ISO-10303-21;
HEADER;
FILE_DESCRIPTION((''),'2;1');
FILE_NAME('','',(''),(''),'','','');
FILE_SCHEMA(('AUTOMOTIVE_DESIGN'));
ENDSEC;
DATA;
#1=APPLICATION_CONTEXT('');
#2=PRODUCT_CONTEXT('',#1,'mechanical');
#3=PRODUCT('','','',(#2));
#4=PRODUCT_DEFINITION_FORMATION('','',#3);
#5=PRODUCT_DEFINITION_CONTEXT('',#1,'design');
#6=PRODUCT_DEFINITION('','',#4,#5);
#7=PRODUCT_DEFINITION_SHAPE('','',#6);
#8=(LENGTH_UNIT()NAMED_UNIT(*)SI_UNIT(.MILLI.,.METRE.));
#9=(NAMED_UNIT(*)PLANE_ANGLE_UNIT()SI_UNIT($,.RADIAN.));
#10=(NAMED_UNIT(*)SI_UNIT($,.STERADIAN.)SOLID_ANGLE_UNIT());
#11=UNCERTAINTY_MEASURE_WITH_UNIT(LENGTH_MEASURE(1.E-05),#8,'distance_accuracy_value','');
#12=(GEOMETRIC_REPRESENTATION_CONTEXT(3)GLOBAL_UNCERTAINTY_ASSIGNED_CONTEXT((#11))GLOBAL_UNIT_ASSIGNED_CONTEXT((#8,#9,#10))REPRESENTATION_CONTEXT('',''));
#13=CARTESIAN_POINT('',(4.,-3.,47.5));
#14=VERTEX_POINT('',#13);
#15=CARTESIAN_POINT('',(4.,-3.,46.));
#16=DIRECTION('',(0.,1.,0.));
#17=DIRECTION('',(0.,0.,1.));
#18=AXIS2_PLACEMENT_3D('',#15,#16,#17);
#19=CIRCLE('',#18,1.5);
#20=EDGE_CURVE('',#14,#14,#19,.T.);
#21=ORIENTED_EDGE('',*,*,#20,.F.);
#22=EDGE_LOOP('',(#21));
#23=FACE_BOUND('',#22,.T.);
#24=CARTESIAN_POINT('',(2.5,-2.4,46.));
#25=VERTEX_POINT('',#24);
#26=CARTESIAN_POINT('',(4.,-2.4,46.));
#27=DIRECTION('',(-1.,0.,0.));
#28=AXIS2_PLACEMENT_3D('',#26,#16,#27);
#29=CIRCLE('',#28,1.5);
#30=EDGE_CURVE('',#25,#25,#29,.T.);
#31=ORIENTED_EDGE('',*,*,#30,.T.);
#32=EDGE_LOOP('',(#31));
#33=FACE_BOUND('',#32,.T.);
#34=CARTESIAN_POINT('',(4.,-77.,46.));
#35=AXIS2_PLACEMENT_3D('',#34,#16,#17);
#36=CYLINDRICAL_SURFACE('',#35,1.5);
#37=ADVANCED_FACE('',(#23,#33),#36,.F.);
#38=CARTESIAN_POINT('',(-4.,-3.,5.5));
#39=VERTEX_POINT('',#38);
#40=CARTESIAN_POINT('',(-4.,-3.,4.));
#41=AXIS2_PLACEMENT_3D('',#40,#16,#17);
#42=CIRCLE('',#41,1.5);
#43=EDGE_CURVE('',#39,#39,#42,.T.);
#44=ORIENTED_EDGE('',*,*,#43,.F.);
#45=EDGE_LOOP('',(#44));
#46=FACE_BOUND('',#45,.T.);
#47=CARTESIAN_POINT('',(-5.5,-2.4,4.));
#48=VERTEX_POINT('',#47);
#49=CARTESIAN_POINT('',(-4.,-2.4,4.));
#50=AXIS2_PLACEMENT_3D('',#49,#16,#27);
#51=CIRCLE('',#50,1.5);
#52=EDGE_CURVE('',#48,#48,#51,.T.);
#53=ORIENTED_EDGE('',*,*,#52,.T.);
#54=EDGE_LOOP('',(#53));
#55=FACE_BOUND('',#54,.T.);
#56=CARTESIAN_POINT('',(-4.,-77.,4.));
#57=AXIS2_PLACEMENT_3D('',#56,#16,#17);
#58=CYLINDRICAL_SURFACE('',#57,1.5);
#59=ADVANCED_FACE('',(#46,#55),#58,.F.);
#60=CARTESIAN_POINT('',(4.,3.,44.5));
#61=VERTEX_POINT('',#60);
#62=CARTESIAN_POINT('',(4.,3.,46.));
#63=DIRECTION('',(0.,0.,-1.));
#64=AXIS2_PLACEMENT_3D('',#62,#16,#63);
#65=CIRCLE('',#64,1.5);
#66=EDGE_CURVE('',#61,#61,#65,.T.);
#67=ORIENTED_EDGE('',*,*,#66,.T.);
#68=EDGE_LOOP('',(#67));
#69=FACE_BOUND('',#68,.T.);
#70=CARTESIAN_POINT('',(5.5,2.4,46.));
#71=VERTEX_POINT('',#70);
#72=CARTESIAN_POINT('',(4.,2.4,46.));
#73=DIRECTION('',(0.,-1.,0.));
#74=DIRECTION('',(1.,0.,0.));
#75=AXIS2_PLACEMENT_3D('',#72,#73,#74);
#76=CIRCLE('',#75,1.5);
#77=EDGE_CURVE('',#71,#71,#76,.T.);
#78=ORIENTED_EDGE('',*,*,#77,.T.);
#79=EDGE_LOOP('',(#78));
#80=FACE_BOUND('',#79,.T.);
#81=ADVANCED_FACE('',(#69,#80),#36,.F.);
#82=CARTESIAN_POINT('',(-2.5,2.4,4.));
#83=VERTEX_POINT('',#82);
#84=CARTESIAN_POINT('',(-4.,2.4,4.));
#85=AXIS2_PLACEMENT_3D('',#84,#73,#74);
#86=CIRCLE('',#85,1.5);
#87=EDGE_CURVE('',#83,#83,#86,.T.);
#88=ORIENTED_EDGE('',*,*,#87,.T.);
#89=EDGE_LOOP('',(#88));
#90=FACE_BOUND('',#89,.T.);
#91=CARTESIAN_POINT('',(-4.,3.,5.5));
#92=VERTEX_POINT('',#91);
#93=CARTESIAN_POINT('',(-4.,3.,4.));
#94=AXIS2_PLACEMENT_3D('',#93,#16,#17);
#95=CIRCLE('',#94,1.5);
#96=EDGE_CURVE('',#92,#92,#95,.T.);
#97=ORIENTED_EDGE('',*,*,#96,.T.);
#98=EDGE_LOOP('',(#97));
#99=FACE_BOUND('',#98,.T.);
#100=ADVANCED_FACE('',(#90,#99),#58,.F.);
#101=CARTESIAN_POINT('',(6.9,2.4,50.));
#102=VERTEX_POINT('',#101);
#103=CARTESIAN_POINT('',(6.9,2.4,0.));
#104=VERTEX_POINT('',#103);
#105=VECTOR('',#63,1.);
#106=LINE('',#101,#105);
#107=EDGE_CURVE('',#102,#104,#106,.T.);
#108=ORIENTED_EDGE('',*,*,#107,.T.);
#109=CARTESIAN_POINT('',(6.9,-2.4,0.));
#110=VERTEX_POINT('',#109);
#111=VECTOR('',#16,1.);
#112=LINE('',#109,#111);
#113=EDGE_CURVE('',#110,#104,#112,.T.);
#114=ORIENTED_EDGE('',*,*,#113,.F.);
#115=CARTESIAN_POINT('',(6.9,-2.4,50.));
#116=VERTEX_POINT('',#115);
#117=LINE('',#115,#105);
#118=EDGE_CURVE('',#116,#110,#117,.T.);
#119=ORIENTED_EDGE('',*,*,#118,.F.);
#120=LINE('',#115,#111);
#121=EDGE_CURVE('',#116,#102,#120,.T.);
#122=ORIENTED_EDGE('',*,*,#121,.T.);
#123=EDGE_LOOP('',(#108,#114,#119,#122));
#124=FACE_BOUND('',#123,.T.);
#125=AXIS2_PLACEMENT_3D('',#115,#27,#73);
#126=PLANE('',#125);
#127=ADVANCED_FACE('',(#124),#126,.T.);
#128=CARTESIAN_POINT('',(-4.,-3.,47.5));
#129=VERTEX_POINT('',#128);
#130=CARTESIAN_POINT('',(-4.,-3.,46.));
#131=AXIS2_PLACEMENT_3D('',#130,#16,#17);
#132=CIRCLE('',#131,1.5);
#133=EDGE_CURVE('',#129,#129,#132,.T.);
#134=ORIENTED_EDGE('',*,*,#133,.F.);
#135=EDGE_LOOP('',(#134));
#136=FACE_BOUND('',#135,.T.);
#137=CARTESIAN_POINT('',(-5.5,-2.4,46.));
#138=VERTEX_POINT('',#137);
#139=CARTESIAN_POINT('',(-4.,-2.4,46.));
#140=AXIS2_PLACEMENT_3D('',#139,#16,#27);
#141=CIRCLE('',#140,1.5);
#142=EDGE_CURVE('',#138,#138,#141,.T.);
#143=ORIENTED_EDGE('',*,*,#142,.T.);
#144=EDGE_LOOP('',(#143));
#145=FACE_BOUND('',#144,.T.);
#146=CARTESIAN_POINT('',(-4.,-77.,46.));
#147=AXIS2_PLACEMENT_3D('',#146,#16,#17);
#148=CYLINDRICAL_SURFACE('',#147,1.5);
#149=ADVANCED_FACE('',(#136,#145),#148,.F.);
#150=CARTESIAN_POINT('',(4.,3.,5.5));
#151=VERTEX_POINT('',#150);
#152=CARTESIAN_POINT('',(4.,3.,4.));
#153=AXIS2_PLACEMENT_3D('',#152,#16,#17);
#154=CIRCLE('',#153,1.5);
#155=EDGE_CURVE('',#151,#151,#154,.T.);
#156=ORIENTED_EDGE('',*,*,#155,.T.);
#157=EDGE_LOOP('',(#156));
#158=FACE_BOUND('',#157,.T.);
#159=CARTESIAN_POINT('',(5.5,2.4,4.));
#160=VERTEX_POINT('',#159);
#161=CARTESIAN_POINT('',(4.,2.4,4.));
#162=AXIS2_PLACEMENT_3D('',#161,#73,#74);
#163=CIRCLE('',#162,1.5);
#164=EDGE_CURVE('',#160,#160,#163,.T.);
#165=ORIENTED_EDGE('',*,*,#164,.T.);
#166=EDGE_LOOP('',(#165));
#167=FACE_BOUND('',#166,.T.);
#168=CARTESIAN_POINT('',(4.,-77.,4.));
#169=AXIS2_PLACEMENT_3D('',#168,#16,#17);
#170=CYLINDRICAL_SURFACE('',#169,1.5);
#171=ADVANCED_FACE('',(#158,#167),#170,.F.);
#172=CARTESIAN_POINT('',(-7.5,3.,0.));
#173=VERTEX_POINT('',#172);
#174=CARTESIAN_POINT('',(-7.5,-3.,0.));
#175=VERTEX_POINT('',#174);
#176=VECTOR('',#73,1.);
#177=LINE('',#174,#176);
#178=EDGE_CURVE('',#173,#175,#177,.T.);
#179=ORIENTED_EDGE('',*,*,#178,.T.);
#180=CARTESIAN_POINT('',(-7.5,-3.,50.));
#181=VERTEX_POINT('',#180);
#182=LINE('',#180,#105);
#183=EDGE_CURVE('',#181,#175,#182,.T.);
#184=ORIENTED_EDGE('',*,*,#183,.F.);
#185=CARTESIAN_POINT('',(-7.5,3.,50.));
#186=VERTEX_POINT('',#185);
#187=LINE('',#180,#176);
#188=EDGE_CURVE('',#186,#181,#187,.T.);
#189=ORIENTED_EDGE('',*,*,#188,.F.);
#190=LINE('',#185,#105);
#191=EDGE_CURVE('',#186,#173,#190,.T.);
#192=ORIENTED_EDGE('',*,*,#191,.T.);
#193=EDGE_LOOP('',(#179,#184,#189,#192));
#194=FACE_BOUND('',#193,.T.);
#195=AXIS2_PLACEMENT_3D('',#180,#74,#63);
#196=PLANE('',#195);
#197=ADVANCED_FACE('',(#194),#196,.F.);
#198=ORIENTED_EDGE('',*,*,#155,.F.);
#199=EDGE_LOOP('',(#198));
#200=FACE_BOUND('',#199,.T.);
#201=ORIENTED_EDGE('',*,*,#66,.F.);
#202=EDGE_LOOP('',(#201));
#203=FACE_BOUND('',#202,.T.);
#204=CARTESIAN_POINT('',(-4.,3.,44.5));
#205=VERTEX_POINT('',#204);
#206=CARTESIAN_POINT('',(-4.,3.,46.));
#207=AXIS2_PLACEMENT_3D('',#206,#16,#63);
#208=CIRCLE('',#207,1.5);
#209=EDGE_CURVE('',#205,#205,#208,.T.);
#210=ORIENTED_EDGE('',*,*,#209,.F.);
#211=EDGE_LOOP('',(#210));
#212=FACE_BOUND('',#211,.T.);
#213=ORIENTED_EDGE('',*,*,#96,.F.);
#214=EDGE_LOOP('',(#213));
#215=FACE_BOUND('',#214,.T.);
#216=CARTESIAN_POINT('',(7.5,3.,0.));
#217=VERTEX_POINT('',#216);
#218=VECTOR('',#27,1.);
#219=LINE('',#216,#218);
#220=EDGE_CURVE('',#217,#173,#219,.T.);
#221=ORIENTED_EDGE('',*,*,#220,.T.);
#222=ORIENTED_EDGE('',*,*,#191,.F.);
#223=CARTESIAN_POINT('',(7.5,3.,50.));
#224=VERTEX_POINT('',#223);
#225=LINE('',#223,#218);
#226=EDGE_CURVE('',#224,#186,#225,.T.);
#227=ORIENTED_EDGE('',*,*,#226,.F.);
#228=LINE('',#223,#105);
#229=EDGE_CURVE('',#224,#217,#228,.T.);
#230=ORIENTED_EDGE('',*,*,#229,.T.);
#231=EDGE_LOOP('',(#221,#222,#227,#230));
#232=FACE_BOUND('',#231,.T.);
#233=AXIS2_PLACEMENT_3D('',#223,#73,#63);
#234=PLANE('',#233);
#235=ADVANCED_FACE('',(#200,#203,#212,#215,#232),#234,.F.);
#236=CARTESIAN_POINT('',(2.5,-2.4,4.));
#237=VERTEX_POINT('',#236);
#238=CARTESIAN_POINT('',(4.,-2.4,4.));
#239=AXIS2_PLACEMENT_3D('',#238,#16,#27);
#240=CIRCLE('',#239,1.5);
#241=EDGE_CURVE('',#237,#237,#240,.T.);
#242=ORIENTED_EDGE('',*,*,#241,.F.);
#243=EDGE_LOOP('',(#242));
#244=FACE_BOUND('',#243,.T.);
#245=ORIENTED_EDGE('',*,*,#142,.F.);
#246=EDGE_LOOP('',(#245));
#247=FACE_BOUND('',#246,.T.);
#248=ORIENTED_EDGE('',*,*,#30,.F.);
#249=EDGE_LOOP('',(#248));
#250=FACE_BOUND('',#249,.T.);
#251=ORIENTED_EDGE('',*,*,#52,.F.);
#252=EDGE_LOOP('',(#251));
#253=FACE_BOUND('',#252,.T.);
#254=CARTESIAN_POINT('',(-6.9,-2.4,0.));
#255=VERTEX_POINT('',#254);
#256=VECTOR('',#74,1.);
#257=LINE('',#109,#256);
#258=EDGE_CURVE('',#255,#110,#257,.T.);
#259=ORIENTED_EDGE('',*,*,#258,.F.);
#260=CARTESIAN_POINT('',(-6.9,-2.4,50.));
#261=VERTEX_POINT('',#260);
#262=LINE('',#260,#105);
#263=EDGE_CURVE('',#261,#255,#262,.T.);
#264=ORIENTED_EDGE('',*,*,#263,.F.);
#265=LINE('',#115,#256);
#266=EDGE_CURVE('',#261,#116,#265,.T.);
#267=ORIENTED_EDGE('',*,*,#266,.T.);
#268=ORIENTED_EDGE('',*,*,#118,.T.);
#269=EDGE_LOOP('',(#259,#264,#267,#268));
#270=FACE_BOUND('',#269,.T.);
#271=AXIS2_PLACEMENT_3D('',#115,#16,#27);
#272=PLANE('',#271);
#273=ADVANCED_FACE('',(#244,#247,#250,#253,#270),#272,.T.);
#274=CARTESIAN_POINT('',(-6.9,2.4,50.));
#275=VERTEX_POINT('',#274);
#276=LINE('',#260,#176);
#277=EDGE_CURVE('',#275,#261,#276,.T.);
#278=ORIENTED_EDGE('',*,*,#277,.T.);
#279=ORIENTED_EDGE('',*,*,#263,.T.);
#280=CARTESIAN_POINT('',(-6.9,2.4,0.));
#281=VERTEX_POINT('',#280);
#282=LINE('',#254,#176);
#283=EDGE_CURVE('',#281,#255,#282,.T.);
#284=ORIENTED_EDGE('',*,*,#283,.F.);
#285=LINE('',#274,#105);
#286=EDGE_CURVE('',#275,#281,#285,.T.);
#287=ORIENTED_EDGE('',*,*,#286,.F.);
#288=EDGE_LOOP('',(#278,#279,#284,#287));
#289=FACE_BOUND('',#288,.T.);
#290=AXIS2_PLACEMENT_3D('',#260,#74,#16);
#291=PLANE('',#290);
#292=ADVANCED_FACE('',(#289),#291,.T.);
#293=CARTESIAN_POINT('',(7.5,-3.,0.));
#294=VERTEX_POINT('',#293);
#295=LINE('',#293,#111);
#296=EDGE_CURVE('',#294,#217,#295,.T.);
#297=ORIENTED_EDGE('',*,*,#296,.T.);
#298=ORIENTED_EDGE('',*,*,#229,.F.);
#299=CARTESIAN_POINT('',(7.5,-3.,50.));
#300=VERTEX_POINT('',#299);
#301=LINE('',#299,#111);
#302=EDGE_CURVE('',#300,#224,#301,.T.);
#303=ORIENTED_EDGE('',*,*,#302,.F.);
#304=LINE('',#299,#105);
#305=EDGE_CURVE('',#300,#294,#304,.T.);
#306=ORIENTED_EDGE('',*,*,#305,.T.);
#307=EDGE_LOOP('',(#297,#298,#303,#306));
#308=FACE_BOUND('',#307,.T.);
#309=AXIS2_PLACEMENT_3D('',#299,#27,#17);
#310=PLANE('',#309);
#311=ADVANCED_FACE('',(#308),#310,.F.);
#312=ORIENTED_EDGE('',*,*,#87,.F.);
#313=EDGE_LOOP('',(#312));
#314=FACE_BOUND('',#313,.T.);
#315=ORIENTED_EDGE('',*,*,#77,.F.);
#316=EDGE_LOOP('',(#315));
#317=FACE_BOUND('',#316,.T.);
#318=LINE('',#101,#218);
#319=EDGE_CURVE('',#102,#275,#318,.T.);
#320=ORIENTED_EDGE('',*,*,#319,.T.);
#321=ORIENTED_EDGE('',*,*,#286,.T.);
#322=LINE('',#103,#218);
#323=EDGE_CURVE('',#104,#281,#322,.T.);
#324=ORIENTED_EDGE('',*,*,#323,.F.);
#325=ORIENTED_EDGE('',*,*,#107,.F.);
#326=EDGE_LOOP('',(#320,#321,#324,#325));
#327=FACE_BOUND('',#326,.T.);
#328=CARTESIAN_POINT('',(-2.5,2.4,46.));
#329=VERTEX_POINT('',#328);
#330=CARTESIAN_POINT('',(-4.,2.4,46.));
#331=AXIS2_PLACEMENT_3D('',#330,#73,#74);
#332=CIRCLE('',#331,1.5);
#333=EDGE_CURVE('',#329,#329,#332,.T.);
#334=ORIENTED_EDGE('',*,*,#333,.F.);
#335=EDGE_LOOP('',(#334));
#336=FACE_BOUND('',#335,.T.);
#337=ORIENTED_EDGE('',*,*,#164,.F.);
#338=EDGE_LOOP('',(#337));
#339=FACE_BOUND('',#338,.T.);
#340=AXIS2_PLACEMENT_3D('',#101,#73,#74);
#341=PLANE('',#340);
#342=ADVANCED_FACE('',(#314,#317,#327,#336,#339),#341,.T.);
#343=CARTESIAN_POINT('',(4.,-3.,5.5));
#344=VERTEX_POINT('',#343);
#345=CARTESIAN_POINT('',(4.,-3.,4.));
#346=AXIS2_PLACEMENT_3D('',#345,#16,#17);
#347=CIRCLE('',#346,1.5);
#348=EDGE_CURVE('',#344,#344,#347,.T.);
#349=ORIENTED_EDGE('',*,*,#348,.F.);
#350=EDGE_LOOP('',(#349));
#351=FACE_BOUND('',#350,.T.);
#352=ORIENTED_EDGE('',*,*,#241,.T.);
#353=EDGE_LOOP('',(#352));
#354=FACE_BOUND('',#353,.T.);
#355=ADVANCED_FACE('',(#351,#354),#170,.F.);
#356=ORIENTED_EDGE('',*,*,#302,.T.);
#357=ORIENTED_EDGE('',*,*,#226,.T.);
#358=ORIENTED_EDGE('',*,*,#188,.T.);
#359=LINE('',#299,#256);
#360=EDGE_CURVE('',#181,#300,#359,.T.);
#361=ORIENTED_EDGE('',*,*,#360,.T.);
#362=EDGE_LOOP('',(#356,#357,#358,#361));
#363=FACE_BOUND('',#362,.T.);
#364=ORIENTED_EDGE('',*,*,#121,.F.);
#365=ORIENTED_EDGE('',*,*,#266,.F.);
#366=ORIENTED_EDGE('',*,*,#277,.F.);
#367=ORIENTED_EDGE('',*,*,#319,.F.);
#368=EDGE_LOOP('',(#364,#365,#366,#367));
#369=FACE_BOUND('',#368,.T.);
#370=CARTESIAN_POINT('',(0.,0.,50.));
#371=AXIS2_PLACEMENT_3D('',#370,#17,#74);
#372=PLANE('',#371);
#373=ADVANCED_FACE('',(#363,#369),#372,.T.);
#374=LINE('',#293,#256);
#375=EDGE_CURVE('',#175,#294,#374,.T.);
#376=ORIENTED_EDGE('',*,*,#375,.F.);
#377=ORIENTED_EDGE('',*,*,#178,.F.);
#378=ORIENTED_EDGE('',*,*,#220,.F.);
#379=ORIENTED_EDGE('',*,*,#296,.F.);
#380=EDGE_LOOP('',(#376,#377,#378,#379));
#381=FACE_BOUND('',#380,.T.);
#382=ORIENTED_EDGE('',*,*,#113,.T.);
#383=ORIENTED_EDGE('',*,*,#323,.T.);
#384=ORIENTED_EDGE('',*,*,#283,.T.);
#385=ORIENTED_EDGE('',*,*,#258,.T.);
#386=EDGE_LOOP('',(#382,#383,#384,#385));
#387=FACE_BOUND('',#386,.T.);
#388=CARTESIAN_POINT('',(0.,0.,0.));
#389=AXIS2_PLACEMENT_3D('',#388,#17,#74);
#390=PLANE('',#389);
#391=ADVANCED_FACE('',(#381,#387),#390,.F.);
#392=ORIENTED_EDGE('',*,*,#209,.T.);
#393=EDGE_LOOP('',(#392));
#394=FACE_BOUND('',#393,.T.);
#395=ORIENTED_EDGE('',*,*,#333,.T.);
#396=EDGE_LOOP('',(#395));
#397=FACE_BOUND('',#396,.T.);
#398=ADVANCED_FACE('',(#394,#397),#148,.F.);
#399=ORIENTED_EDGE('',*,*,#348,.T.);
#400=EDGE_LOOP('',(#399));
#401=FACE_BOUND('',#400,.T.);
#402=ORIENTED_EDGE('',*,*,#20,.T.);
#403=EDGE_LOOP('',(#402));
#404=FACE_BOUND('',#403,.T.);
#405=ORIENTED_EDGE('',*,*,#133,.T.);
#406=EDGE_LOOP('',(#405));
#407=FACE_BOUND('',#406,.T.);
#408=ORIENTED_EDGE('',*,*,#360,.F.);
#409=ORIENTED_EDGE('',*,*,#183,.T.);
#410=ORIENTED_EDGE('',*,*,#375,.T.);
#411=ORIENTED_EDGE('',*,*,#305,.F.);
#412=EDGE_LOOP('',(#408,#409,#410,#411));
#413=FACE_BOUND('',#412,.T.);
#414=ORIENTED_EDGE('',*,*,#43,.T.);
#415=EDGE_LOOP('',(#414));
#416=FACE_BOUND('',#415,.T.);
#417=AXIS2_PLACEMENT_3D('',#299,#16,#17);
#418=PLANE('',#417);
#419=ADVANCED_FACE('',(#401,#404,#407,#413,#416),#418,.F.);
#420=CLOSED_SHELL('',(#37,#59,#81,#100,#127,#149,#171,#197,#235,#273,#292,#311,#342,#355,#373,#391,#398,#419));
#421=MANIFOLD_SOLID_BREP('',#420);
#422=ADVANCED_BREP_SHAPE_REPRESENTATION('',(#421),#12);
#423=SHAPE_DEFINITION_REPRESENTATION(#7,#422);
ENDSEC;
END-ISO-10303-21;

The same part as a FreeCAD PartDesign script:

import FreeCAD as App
import Part
import Sketcher
Q = App.Units.Quantity

doc = App.newDocument("Part")
body = doc.addObject("PartDesign::Body", "Body")

sketch1 = doc.addObject("Sketcher::SketchObject", "Sketch")
body.addObject(sketch1)
sketch1.AttachmentSupport = (doc.XY_Plane, [""])
sketch1.MapMode = "FlatFace"
sketch1.addGeometry(Part.LineSegment(App.Vector(-7.5, 3, 0), App.Vector(-7.5, -3, 0)), False)
sketch1.addGeometry(Part.LineSegment(App.Vector(-7.5, -3, 0), App.Vector(7.5, -3, 0)), False)
sketch1.addGeometry(Part.LineSegment(App.Vector(7.5, -3, 0), App.Vector(7.5, 3, 0)), False)
sketch1.addGeometry(Part.LineSegment(App.Vector(7.5, 3, 0), App.Vector(-7.5, 3, 0)), False)
sketch1.addGeometry(Part.LineSegment(App.Vector(6.9, -2.4, 0), App.Vector(-6.9, -2.4, 0)), False)
sketch1.addGeometry(Part.LineSegment(App.Vector(-6.9, -2.4, 0), App.Vector(-6.9, 2.4, 0)), False)
sketch1.addGeometry(Part.LineSegment(App.Vector(-6.9, 2.4, 0), App.Vector(6.9, 2.4, 0)), False)
sketch1.addGeometry(Part.LineSegment(App.Vector(6.9, 2.4, 0), App.Vector(6.9, -2.4, 0)), False)
sketch1.addConstraint(Sketcher.Constraint("Coincident", 0, 2, 1, 1))
sketch1.addConstraint(Sketcher.Constraint("Coincident", 1, 2, 2, 1))
sketch1.addConstraint(Sketcher.Constraint("Coincident", 2, 2, 3, 1))
sketch1.addConstraint(Sketcher.Constraint("Coincident", 3, 2, 0, 1))
sketch1.addConstraint(Sketcher.Constraint("Coincident", 4, 2, 5, 1))
sketch1.addConstraint(Sketcher.Constraint("Coincident", 5, 2, 6, 1))
sketch1.addConstraint(Sketcher.Constraint("Coincident", 6, 2, 7, 1))
sketch1.addConstraint(Sketcher.Constraint("Coincident", 7, 2, 4, 1))
sketch1.addConstraint(Sketcher.Constraint("Vertical", 0))
sketch1.addConstraint(Sketcher.Constraint("Horizontal", 1))
sketch1.addConstraint(Sketcher.Constraint("Vertical", 2))
sketch1.addConstraint(Sketcher.Constraint("Horizontal", 3))
sketch1.addConstraint(Sketcher.Constraint("Horizontal", 4))
sketch1.addConstraint(Sketcher.Constraint("Vertical", 5))
sketch1.addConstraint(Sketcher.Constraint("Horizontal", 6))
sketch1.addConstraint(Sketcher.Constraint("Vertical", 7))
sketch1.addConstraint(Sketcher.Constraint("Symmetric", 0, 2, 2, 2, -1, 1))
sketch1.addConstraint(Sketcher.Constraint("Symmetric", 4, 2, 6, 2, -1, 1))
sketch1.addConstraint(Sketcher.Constraint("DistanceX", 1, 1, 1, 2, Q("15 mm")))
sketch1.addConstraint(Sketcher.Constraint("DistanceY", 0, 2, 0, 1, Q("6 mm")))
sketch1.addConstraint(Sketcher.Constraint("DistanceX", 4, 2, 4, 1, Q("13.8 mm")))
sketch1.addConstraint(Sketcher.Constraint("DistanceY", 5, 1, 5, 2, Q("4.8 mm")))
pad1 = doc.addObject("PartDesign::Pad", "Pad")
body.addObject(pad1)
pad1.Profile = sketch1
pad1.Length = 50

sketch2 = doc.addObject("Sketcher::SketchObject", "Sketch001")
body.addObject(sketch2)
sketch2.AttachmentSupport = (doc.XZ_Plane, [""])
sketch2.MapMode = "FlatFace"
sketch2.AttachmentOffset = App.Placement(App.Vector(0, 0, -3), App.Rotation())
sketch2.addGeometry(Part.Circle(App.Vector(-4, 4, 0), App.Vector(0, 0, 1), 1.5), False)
sketch2.addGeometry(Part.Circle(App.Vector(4, 4, 0), App.Vector(0, 0, 1), 1.5), False)
sketch2.addGeometry(Part.Circle(App.Vector(4, 46, 0), App.Vector(0, 0, 1), 1.5), False)
sketch2.addGeometry(Part.Circle(App.Vector(-4, 46, 0), App.Vector(0, 0, 1), 1.5), False)
sketch2.addConstraint(Sketcher.Constraint("Equal", 0, 1))
sketch2.addConstraint(Sketcher.Constraint("Equal", 1, 2))
sketch2.addConstraint(Sketcher.Constraint("Equal", 2, 3))
sketch2.addConstraint(Sketcher.Constraint("Symmetric", 0, 3, 1, 3, -2))
sketch2.addConstraint(Sketcher.Constraint("Symmetric", 2, 3, 3, 3, -2))
sketch2.addConstraint(Sketcher.Constraint("Vertical", 1, 3, 2, 3))
sketch2.addConstraint(Sketcher.Constraint("Diameter", 0, Q("3 mm")))
sketch2.addConstraint(Sketcher.Constraint("DistanceX", 0, 3, -1, 1, Q("4 mm")))
sketch2.addConstraint(Sketcher.Constraint("DistanceY", -1, 1, 0, 3, Q("4 mm")))
sketch2.addConstraint(Sketcher.Constraint("DistanceY", -1, 1, 2, 3, Q("46 mm")))
pocket1 = doc.addObject("PartDesign::Pocket", "Pocket")
body.addObject(pocket1)
pocket1.Profile = sketch2
pocket1.Length = 80
pocket1.Reversed = True

doc.recompute()
